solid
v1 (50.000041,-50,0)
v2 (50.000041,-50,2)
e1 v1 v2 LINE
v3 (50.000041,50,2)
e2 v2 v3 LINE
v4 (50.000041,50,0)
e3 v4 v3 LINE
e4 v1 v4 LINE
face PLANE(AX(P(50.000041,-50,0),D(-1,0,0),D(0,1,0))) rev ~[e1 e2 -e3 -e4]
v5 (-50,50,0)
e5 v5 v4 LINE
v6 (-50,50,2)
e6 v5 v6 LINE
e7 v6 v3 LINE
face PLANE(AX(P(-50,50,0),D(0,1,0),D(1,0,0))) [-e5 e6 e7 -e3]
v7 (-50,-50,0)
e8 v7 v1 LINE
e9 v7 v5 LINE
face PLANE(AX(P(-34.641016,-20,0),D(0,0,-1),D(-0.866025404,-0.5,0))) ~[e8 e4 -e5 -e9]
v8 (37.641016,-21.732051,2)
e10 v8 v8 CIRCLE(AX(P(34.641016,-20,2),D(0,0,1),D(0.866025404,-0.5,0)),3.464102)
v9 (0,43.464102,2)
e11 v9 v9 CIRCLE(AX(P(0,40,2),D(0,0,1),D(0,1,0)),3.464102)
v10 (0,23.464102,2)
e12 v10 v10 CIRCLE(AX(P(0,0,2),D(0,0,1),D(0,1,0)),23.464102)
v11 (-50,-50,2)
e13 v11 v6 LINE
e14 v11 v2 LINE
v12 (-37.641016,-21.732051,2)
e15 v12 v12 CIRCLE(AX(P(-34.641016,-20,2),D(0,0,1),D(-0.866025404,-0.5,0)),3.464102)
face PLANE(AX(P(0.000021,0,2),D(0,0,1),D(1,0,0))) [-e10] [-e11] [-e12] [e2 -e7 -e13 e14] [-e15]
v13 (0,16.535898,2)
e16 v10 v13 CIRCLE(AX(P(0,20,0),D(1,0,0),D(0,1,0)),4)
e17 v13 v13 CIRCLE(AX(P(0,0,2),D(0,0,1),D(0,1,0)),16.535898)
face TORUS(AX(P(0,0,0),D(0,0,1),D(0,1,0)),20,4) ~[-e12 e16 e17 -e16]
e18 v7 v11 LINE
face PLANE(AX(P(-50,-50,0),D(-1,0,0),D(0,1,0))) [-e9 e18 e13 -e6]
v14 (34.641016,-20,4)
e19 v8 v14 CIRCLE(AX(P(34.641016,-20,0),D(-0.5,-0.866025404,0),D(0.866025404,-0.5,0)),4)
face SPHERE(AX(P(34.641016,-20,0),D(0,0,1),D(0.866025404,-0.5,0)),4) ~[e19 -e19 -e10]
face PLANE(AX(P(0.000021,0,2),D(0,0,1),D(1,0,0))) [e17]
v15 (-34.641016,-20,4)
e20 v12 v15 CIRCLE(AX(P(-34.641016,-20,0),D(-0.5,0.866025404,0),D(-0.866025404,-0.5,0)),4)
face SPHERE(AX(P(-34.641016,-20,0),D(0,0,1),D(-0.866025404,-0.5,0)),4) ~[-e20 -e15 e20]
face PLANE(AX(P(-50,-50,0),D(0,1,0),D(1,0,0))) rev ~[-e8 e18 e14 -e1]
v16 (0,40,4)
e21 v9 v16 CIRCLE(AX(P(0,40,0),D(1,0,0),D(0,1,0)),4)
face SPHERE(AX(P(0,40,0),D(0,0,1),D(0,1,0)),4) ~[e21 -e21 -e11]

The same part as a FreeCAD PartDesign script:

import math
import FreeCAD as App
import Part
import Sketcher

V = App.Vector
Q = App.Units.Quantity

doc = App.newDocument("Part")
body = doc.addObject("PartDesign::Body", "Body")

# Sketch on XY plane
sketch1 = doc.addObject("Sketcher::SketchObject", "Sketch")
body.addObject(sketch1)
sketch1.AttachmentSupport = (doc.XY_Plane, [""])
sketch1.MapMode = "FlatFace"
sketch1.addGeometry([
    Part.LineSegment(V(-50, 50, 0), V(-50, -50, 0)),
    Part.LineSegment(V(-50, -50, 0), V(50.000041, -50, 0)),
    Part.LineSegment(V(50.000041, -50, 0), V(50.000041, 50, 0)),
    Part.LineSegment(V(50.000041, 50, 0), V(-50, 50, 0)),
], False)
sketch1.addConstraint([
    Sketcher.Constraint("Coincident", 0, 2, 1, 1),
    Sketcher.Constraint("Coincident", 1, 2, 2, 1),
    Sketcher.Constraint("Coincident", 2, 2, 3, 1),
    Sketcher.Constraint("Coincident", 3, 2, 0, 1),
    Sketcher.Constraint("Vertical", 0),
    Sketcher.Constraint("Horizontal", 1),
    Sketcher.Constraint("Vertical", 2),
    Sketcher.Constraint("Horizontal", 3),
    Sketcher.Constraint("DistanceY", 0, 2, 0, 1, Q("100 mm")),
    Sketcher.Constraint("DistanceX", 0, 2, -1, 1, Q("50 mm")),
    Sketcher.Constraint("DistanceY", 0, 2, -1, 1, Q("50 mm")),
    Sketcher.Constraint("DistanceX", 1, 1, 1, 2, Q("100.000041 mm")),
])
pad1 = doc.addObject("PartDesign::Pad", "Pad")
body.addObject(pad1)
pad1.Profile = sketch1
pad1.Length = 2

# Sketch on YZ plane
sketch2 = doc.addObject("Sketcher::SketchObject", "Sketch001")
body.addObject(sketch2)
sketch2.AttachmentSupport = (doc.YZ_Plane, [""])
sketch2.MapMode = "FlatFace"
sketch2.addGeometry([
    Part.LineSegment(V(16, 0, 0), V(24, 0, 0)),
    Part.ArcOfCircle(Part.Circle(V(20, 0, 0), V(0, 0, 1), 4), math.radians(0), math.radians(180)),
], False)
sketch2.addConstraint([
    Sketcher.Constraint("Coincident", 0, 1, 1, 2),
    Sketcher.Constraint("Coincident", 1, 1, 0, 2),
    Sketcher.Constraint("Horizontal", 0),
    Sketcher.Constraint("PointOnObject", 1, 3, -1),
    Sketcher.Constraint("PointOnObject", 0, 1, -1),
    Sketcher.Constraint("Radius", 1, Q("4 mm")),
    Sketcher.Constraint("DistanceX", -1, 1, 1, 3, Q("20 mm")),
])
revolution = doc.addObject("PartDesign::Revolution", "Revolution")
body.addObject(revolution)
revolution.Profile = sketch2
revolution.ReferenceAxis = (sketch2, ["V_Axis"])
revolution.Angle = 360

# Sketch on YZ plane
sketch3 = doc.addObject("Sketcher::SketchObject", "Sketch002")
body.addObject(sketch3)
sketch3.AttachmentSupport = (doc.YZ_Plane, [""])
sketch3.MapMode = "FlatFace"
sketch3.addGeometry([
    Part.LineSegment(V(40, 0, 0), V(44, 0, 0)),
    Part.ArcOfCircle(Part.Circle(V(40, 0, 0), V(0, 0, 1), 4), math.radians(0), math.radians(90)),
    Part.LineSegment(V(40, 4, 0), V(40, 0, 0)),
], False)
sketch3.addGeometry(Part.LineSegment(V(40, 4, 0), V(40, 0, 0)), True)  # axis
sketch3.addConstraint([
    Sketcher.Constraint("Coincident", 0, 2, 1, 1),
    Sketcher.Constraint("Coincident", 1, 2, 2, 1),
    Sketcher.Constraint("Coincident", 2, 2, 0, 1),
    Sketcher.Constraint("Horizontal", 0),
    Sketcher.Constraint("Vertical", 2),
    Sketcher.Constraint("Vertical", 3),
    Sketcher.Constraint("Coincident", 2, 2, 1, 3),
    Sketcher.Constraint("Coincident", 3, 1, 1, 2),
    Sketcher.Constraint("PointOnObject", 1, 3, -1),
    Sketcher.Constraint("PointOnObject", 3, 2, -1),
    Sketcher.Constraint("Radius", 1, Q("4 mm")),
    Sketcher.Constraint("DistanceX", -1, 1, 1, 3, Q("40 mm")),
])
revolution2 = doc.addObject("PartDesign::Revolution", "Revolution001")
body.addObject(revolution2)
revolution2.Profile = sketch3
revolution2.ReferenceAxis = (sketch3, ["Axis0"])
revolution2.Angle = 360
doc.recompute()

polarpattern = doc.addObject("PartDesign::PolarPattern", "PolarPattern")
body.addObject(polarpattern)
polarpattern.Originals = [revolution2]
polarpattern.Axis = (doc.Z_Axis, [""])
polarpattern.Angle = 360
polarpattern.Occurrences = 3
body.Tip = polarpattern

doc.recompute()
